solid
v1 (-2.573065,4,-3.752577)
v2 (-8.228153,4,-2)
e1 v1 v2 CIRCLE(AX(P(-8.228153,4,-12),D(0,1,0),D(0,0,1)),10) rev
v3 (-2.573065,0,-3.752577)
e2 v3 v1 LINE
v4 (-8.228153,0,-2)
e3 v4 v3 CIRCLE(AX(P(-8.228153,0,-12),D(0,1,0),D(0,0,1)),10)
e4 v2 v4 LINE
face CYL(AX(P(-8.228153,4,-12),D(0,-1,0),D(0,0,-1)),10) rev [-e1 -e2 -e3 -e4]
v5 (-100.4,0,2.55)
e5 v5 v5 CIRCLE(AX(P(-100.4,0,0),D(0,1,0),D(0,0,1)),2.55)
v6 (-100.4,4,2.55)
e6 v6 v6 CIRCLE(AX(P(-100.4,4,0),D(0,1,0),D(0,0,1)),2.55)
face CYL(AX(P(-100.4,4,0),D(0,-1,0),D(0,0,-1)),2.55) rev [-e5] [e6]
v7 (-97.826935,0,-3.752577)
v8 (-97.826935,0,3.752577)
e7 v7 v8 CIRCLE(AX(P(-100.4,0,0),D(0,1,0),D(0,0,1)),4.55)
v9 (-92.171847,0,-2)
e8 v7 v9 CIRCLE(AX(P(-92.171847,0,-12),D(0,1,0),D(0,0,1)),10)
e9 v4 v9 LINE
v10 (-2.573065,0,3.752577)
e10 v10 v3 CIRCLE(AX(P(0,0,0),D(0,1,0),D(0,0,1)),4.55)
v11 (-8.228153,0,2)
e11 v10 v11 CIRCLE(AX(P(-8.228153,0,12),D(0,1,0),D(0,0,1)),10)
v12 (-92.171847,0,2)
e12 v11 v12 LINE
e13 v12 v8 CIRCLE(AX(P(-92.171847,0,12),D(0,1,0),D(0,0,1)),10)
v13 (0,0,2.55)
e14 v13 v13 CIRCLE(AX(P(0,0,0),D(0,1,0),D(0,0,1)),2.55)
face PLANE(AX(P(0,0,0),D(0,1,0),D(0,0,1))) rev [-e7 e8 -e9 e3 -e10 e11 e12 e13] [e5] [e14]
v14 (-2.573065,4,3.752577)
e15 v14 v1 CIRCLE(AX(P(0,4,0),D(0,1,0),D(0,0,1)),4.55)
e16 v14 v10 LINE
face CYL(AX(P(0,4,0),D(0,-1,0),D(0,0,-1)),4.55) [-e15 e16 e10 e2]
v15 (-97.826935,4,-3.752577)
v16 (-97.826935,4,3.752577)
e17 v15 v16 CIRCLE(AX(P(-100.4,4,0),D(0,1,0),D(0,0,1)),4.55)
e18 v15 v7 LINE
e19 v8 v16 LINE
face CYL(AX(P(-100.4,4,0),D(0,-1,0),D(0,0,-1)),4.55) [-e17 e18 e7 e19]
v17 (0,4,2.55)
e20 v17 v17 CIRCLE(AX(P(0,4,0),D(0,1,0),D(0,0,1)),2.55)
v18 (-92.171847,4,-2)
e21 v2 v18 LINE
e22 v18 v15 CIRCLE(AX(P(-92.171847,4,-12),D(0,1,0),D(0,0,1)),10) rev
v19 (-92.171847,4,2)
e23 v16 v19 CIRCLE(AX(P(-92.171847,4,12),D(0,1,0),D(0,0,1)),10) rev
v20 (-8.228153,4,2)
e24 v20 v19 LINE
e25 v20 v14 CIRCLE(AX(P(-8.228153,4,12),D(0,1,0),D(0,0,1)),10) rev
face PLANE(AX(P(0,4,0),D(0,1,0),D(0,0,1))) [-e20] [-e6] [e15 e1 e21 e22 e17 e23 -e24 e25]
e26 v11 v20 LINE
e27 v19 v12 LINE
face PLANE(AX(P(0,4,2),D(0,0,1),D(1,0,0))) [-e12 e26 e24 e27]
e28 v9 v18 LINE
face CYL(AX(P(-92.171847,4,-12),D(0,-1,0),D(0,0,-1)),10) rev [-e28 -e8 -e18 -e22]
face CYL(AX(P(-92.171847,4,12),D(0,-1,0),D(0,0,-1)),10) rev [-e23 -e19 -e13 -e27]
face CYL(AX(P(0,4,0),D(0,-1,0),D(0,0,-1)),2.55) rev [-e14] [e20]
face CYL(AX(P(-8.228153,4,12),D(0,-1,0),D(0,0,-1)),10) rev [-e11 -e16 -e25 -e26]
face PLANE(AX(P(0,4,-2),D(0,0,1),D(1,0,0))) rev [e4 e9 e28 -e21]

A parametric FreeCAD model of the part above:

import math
import FreeCAD as App
import Part
import Sketcher


def edges_at(feature, points):
    """Names of the edges that pass closest to the given points."""
    edges = feature.Shape.Edges
    near = lambda p: min(range(len(edges)), key=lambda i: edges[i].distToShape(Part.Vertex(*p))[0])
    return sorted({f"Edge{near(p) + 1}" for p in points})

doc = App.newDocument("Part")
body = doc.addObject("PartDesign::Body", "Body")

# Sketch on XZ plane
sketch1 = doc.addObject("Sketcher::SketchObject", "Sketch")
body.addObject(sketch1)
sketch1.AttachmentSupport = (doc.XZ_Plane, [""])
sketch1.MapMode = "FlatFace"
sketch1.addGeometry(Part.LineSegment(App.Vector(-96.3, 2, 0), App.Vector(-4.1, 2, 0)), False)
sketch1.addGeometry(Part.ArcOfCircle(Part.Circle(App.Vector(0, 0, 0), App.Vector(0, 0, 1), 4.5), math.radians(0), math.radians(154)), False)
sketch1.addGeometry(Part.ArcOfCircle(Part.Circle(App.Vector(0, 0, 0), App.Vector(0, 0, 1), 4.5), math.radians(-154), math.radians(0)), False)
sketch1.addGeometry(Part.LineSegment(App.Vector(-4.1, -2, 0), App.Vector(-96.3, -2, 0)), False)
sketch1.addGeometry(Part.ArcOfCircle(Part.Circle(App.Vector(-100.4, 0, 0), App.Vector(0, 0, 1), 4.5), math.radians(26), math.radians(334)), False)
sketch1.addGeometry(Part.ArcOfCircle(Part.Circle(App.Vector(-100.4, 0, 0), App.Vector(0, 0, 1), 2.6), math.radians(-52), math.radians(0)), False)
sketch1.addGeometry(Part.ArcOfCircle(Part.Circle(App.Vector(-100.4, 0, 0), App.Vector(0, 0, 1), 2.6), math.radians(0), math.radians(52)), False)
sketch1.addGeometry(Part.ArcOfCircle(Part.Circle(App.Vector(-100.4, 0, 0), App.Vector(0, 0, 1), 2.5), math.radians(52), math.radians(308)), False)
sketch1.addGeometry(Part.ArcOfCircle(Part.Circle(App.Vector(0, 0, 0), App.Vector(0, 0, 1), 2.5), math.radians(0), math.radians(128)), False)
sketch1.addGeometry(Part.ArcOfCircle(Part.Circle(App.Vector(0, 0, 0), App.Vector(0, 0, 1), 2.6), math.radians(128), math.radians(180)), False)
sketch1.addGeometry(Part.ArcOfCircle(Part.Circle(App.Vector(0, 0, 0), App.Vector(0, 0, 1), 2.6), math.radians(180), math.radians(232)), False)
sketch1.addGeometry(Part.ArcOfCircle(Part.Circle(App.Vector(0, 0, 0), App.Vector(0, 0, 1), 2.5), math.radians(-128), math.radians(0)), False)
sketch1.addConstraint(Sketcher.Constraint("Coincident", 0, 2, 1, 2))
sketch1.addConstraint(Sketcher.Constraint("Tangent", 1, 1, 2, 2))
sketch1.addConstraint(Sketcher.Constraint("Coincident", 2, 1, 3, 1))
sketch1.addConstraint(Sketcher.Constraint("Coincident", 3, 2, 4, 2))
sketch1.addConstraint(Sketcher.Constraint("Coincident", 4, 1, 0, 1))
sketch1.addConstraint(Sketcher.Constraint("Tangent", 5, 2, 6, 1))
sketch1.addConstraint(Sketcher.Constraint("Tangent", 6, 2, 7, 1))
sketch1.addConstraint(Sketcher.Constraint("Tangent", 7, 2, 5, 1))
sketch1.addConstraint(Sketcher.Constraint("Tangent", 8, 2, 9, 1))
sketch1.addConstraint(Sketcher.Constraint("Tangent", 9, 2, 10, 1))
sketch1.addConstraint(Sketcher.Constraint("Tangent", 10, 2, 11, 1))
sketch1.addConstraint(Sketcher.Constraint("Tangent", 11, 2, 8, 1))
sketch1.addConstraint(Sketcher.Constraint("Horizontal", 0))
sketch1.addConstraint(Sketcher.Constraint("Horizontal", 3))
sketch1.addConstraint(Sketcher.Constraint("Coincident", 1, 3, -1, 1))
sketch1.addConstraint(Sketcher.Constraint("Coincident", 8, 3, -1, 1))
sketch1.addConstraint(Sketcher.Constraint("Coincident", 5, 3, 4, 3))
sketch1.addConstraint(Sketcher.Constraint("Equal", 1, 2))
sketch1.addConstraint(Sketcher.Constraint("Equal", 2, 4))
sketch1.addConstraint(Sketcher.Constraint("Equal", 7, 8))
sketch1.addConstraint(Sketcher.Constraint("Equal", 8, 9))
sketch1.addConstraint(Sketcher.Constraint("Symmetric", 3, 2, 4, 1, -1))
sketch1.addConstraint(Sketcher.Constraint("PointOnObject", 1, 1, -1))
sketch1.addConstraint(Sketcher.Constraint("PointOnObject", 5, 2, -1))
sketch1.addConstraint(Sketcher.Constraint("PointOnObject", 9, 2, -1))
sketch1.addConstraint(Sketcher.Constraint("PointOnObject", 11, 2, -1))
sketch1.addConstraint(Sketcher.Constraint("Horizontal", 4, 1, 6, 2))
sketch1.addConstraint(Sketcher.Constraint("Horizontal", 3, 2, 7, 2))
sketch1.addConstraint(Sketcher.Constraint("Horizontal", 6, 2, 8, 2))
sketch1.addConstraint(Sketcher.Constraint("Horizontal", 7, 2, 10, 2))
sketch1.addConstraint(Sketcher.Constraint("Radius", 1, 4.55))
sketch1.addConstraint(Sketcher.Constraint("Radius", 5, 2.55))
sketch1.addConstraint(Sketcher.Constraint("DistanceY", -1, 1, 0, 2, 2.0))
sketch1.addConstraint(Sketcher.Constraint("DistanceX", 4, 3, -1, 1, 100.4))
pad1 = doc.addObject("PartDesign::Pad", "Pad")
body.addObject(pad1)
pad1.Profile = sketch1
pad1.Length = 4
pad1.Reversed = True
doc.recompute()

fillet = doc.addObject("PartDesign::Fillet", "Fillet")
body.addObject(fillet)
fillet.Base = (pad1, edges_at(pad1, [
    (-4.087, 2, 2),
    (-96.313, 2, 2),
    (-96.313, 2, -2),
    (-4.087, 2, -2),
]))
fillet.Radius = 10

doc.recompute()
